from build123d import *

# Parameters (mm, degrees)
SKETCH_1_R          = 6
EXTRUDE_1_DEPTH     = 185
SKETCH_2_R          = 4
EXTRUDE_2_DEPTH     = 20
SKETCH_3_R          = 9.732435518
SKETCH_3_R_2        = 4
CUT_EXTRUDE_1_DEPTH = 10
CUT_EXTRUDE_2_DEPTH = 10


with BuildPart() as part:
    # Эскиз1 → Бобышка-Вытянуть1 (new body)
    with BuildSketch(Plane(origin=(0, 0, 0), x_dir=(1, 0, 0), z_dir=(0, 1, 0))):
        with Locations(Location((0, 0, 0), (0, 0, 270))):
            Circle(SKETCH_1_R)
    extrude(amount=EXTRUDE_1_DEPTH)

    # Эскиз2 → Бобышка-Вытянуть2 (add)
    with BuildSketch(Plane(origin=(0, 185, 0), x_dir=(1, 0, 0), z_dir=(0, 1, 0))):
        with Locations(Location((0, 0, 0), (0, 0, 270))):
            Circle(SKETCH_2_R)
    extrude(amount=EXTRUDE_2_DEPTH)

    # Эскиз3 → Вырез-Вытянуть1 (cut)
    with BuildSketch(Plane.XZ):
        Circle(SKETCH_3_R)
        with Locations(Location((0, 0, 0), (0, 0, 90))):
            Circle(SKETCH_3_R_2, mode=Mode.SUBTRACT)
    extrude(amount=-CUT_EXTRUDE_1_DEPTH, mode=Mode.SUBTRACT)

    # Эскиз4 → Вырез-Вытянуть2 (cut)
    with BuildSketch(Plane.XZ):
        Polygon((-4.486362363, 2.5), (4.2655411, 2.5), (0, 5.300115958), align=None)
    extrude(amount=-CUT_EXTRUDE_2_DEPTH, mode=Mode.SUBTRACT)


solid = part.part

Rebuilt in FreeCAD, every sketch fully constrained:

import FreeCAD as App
import Part
import Sketcher
from FreeCAD import Vector

doc = App.newDocument("Part")
body = doc.addObject("PartDesign::Body", "Body")

sketch1 = body.newObject("Sketcher::SketchObject", "Sketch")
sketch1.AttachmentSupport = (doc.getObject("XZ_Plane"), [""])
sketch1.MapMode = "FlatFace"
sketch1.addGeometry(Part.Circle(Vector(0, 0, 0), Vector(0, 0, 1), 6), False)
sketch1.addConstraint([
    Sketcher.Constraint("Coincident", 0, 3, -1, 1),
    Sketcher.Constraint("Diameter", 0, 12.0),
])
pad1 = body.newObject("PartDesign::Pad", "Pad")
pad1.Profile = sketch1
pad1.Length = 185
pad1.Reversed = True

sketch2 = body.newObject("Sketcher::SketchObject", "Sketch001")
sketch2.AttachmentSupport = (doc.getObject("XZ_Plane"), [""])
sketch2.MapMode = "FlatFace"
sketch2.AttachmentOffset = App.Placement(Vector(0, 0, -185), App.Rotation())
sketch2.addGeometry(Part.Circle(Vector(0, 0, 0), Vector(0, 0, 1), 4), False)
sketch2.addConstraint([
    Sketcher.Constraint("Coincident", 0, 3, -1, 1),
    Sketcher.Constraint("Diameter", 0, 8.0),
])
pad2 = body.newObject("PartDesign::Pad", "Pad001")
pad2.Profile = sketch2
pad2.Length = 20
pad2.Reversed = True

sketch3 = body.newObject("Sketcher::SketchObject", "Sketch002")
sketch3.AttachmentSupport = (doc.getObject("XZ_Plane"), [""])
sketch3.MapMode = "FlatFace"
sketch3.addGeometry([
    Part.Circle(Vector(0, 0, 0), Vector(0, 0, 1), 9.732436),
    Part.Circle(Vector(0, 0, 0), Vector(0, 0, 1), 4),
], False)
sketch3.addConstraint([
    Sketcher.Constraint("Coincident", 0, 3, -1, 1),
    Sketcher.Constraint("Coincident", 1, 3, -1, 1),
    Sketcher.Constraint("Diameter", 1, 8.0),
    Sketcher.Constraint("Diameter", 0, 19.464871),
])
pocket1 = body.newObject("PartDesign::Pocket", "Pocket")
pocket1.Profile = sketch3
pocket1.Length = 10

sketch4 = body.newObject("Sketcher::SketchObject", "Sketch003")
sketch4.AttachmentSupport = (doc.getObject("XZ_Plane"), [""])
sketch4.MapMode = "FlatFace"
sketch4.addGeometry([
    Part.LineSegment(Vector(-4.486362, 2.5, 0), Vector(4.265541, 2.5, 0)),
    Part.LineSegment(Vector(4.265541, 2.5, 0), Vector(0, 5.300116, 0)),
    Part.LineSegment(Vector(0, 5.300116, 0), Vector(-4.486362, 2.5, 0)),
], False)
sketch4.addConstraint([
    Sketcher.Constraint("Coincident", 0, 2, 1, 1),
    Sketcher.Constraint("Coincident", 1, 2, 2, 1),
    Sketcher.Constraint("Coincident", 2, 2, 0, 1),
    Sketcher.Constraint("Horizontal", 0),
    Sketcher.Constraint("PointOnObject", 1, 2, -2),
    Sketcher.Constraint("DistanceY", -1, 1, 0, 2, 2.5),
    Sketcher.Constraint("Distance", 1, 5.102498),
    Sketcher.Constraint("DistanceX", 0, 1, 0, 2, 8.751903),
    Sketcher.Constraint("DistanceX", -1, 1, 0, 2, 4.265541),
])
pocket2 = body.newObject("PartDesign::Pocket", "Pocket001")
pocket2.Profile = sketch4
pocket2.Length = 10

doc.recompute()
